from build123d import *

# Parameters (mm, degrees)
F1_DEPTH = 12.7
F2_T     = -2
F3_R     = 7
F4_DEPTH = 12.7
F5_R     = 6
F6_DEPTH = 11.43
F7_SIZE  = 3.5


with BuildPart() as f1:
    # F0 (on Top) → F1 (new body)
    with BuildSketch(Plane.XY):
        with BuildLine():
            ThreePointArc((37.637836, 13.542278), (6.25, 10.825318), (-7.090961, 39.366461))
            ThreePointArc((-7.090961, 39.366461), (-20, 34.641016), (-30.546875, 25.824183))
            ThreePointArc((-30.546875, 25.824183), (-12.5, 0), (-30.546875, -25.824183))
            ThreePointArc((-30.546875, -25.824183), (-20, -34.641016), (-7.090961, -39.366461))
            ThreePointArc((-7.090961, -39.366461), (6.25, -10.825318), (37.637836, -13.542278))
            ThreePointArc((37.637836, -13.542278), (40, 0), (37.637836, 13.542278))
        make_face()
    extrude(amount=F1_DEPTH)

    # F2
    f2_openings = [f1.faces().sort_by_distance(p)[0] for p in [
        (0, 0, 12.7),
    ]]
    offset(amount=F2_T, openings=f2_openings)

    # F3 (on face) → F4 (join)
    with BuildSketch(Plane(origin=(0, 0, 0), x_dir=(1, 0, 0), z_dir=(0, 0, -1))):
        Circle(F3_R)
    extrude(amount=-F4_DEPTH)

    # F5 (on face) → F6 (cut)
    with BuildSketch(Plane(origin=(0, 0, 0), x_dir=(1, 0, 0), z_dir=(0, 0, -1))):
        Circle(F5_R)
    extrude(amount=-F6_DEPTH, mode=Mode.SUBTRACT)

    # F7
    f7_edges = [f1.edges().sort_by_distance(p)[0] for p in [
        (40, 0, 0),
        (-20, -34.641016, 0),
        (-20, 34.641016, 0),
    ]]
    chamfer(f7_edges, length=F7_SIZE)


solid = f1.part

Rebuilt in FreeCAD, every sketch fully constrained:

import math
import FreeCAD as App
import Part
import Sketcher


def edges_at(feature, points):
    """Names of the edges that pass closest to the given points."""
    edges = feature.Shape.Edges
    near = lambda p: min(range(len(edges)), key=lambda i: edges[i].distToShape(Part.Vertex(*p))[0])
    return sorted({f"Edge{near(p) + 1}" for p in points})


def faces_at(feature, points):
    """Names of the faces that lie closest to the given points."""
    faces = feature.Shape.Faces
    near = lambda p: min(range(len(faces)), key=lambda i: faces[i].distToShape(Part.Vertex(*p))[0])
    return sorted({f"Face{near(p) + 1}" for p in points})

doc = App.newDocument("Part")
body = doc.addObject("PartDesign::Body", "Body")

sketch1 = body.newObject("Sketcher::SketchObject", "Sketch")
sketch1.AttachmentSupport = (doc.getObject("XY_Plane"), [""])
sketch1.MapMode = "FlatFace"
sketch1.addGeometry(Part.ArcOfCircle(Part.Circle(App.Vector(20, 34.641017, 0), App.Vector(0, 0, 1), 27.5), math.radians(170.105512), math.radians(309.894488)), False)
sketch1.addGeometry(Part.ArcOfCircle(Part.Circle(App.Vector(0, 0, 0), App.Vector(0, 0, 1), 40), math.radians(100.211019), math.radians(139.78898)), False)
sketch1.addGeometry(Part.ArcOfCircle(Part.Circle(App.Vector(-40, 0, 0), App.Vector(0, 0, 1), 27.5), math.radians(-69.89449), math.radians(69.89449)), False)
sketch1.addGeometry(Part.ArcOfCircle(Part.Circle(App.Vector(0, 0, 0), App.Vector(0, 0, 1), 40), math.radians(-139.78898), math.radians(-100.211019)), False)
sketch1.addGeometry(Part.ArcOfCircle(Part.Circle(App.Vector(20, -34.641017, 0), App.Vector(0, 0, 1), 27.5), math.radians(50.105512), math.radians(189.894488)), False)
sketch1.addGeometry(Part.ArcOfCircle(Part.Circle(App.Vector(0.000002, 0, 0), App.Vector(0, 0, 1), 39.999998), math.radians(-19.788981), math.radians(19.788981)), False)
sketch1.addConstraint(Sketcher.Constraint("Coincident", 0, 1, 1, 1))
sketch1.addConstraint(Sketcher.Constraint("Coincident", 1, 2, 2, 2))
sketch1.addConstraint(Sketcher.Constraint("Coincident", 2, 1, 3, 1))
sketch1.addConstraint(Sketcher.Constraint("Coincident", 3, 2, 4, 2))
sketch1.addConstraint(Sketcher.Constraint("Coincident", 4, 1, 5, 1))
sketch1.addConstraint(Sketcher.Constraint("Coincident", 5, 2, 0, 2))
sketch1.addConstraint(Sketcher.Constraint("Coincident", 1, 3, -1, 1))
sketch1.addConstraint(Sketcher.Constraint("Coincident", 3, 3, -1, 1))
sketch1.addConstraint(Sketcher.Constraint("Coincident", 5, 3, -1, 1))
sketch1.addConstraint(Sketcher.Constraint("Equal", 0, 2))
sketch1.addConstraint(Sketcher.Constraint("Equal", 1, 3))
sketch1.addConstraint(Sketcher.Constraint("Equal", 2, 4))
sketch1.addConstraint(Sketcher.Constraint("Equal", 3, 5))
sketch1.addConstraint(Sketcher.Constraint("Symmetric", 0, 3, 4, 3, -1))
sketch1.addConstraint(Sketcher.Constraint("PointOnObject", 2, 3, -1))
sketch1.addConstraint(Sketcher.Constraint("Radius", 1, 40.0))
sketch1.addConstraint(Sketcher.Constraint("Radius", 0, 27.5))
sketch1.addConstraint(Sketcher.Constraint("DistanceX", -1, 1, 0, 3, 20.0))
sketch1.addConstraint(Sketcher.Constraint("DistanceX", 2, 3, -1, 1, 40.0))
sketch1.addConstraint(Sketcher.Constraint("DistanceX", 0, 1, -1, 1, 7.090961))
pad1 = body.newObject("PartDesign::Pad", "Pad")
pad1.Profile = sketch1
pad1.Length = 12.7
doc.recompute()

thickness = body.newObject("PartDesign::Thickness", "Thickness")
thickness.Base = (pad1, faces_at(pad1, [(4.727, 0, 12.7)]))
thickness.Value = 2
thickness.Reversed = True
thickness.Join = "Arc"

sketch2 = body.newObject("Sketcher::SketchObject", "Sketch001")
sketch2.AttachmentSupport = (doc.getObject("XY_Plane"), [""])
sketch2.MapMode = "FlatFace"
sketch2.addGeometry(Part.Circle(App.Vector(0, 0, 0), App.Vector(0, 0, 1), 7), False)
sketch2.addConstraint(Sketcher.Constraint("Coincident", 0, 3, -1, 1))
sketch2.addConstraint(Sketcher.Constraint("Diameter", 0, 14.0))
pad2 = body.newObject("PartDesign::Pad", "Pad001")
pad2.Profile = sketch2
pad2.Length = 12.7

sketch3 = body.newObject("Sketcher::SketchObject", "Sketch002")
sketch3.AttachmentSupport = (doc.getObject("XY_Plane"), [""])
sketch3.MapMode = "FlatFace"
sketch3.addGeometry(Part.Circle(App.Vector(0, 0, 0), App.Vector(0, 0, 1), 6), False)
sketch3.addConstraint(Sketcher.Constraint("Coincident", 0, 3, -1, 1))
sketch3.addConstraint(Sketcher.Constraint("Diameter", 0, 12.0))
pocket1 = body.newObject("PartDesign::Pocket", "Pocket")
pocket1.Profile = sketch3
pocket1.Length = 11.43
pocket1.Reversed = True
doc.recompute()

chamfer = body.newObject("PartDesign::Chamfer", "Chamfer")
chamfer.Base = (pocket1, edges_at(pocket1, [(40, 0, 0), (-20, -34.641, 0), (-20, 34.641, 0)]))
chamfer.Size = 3.5

doc.recompute()
